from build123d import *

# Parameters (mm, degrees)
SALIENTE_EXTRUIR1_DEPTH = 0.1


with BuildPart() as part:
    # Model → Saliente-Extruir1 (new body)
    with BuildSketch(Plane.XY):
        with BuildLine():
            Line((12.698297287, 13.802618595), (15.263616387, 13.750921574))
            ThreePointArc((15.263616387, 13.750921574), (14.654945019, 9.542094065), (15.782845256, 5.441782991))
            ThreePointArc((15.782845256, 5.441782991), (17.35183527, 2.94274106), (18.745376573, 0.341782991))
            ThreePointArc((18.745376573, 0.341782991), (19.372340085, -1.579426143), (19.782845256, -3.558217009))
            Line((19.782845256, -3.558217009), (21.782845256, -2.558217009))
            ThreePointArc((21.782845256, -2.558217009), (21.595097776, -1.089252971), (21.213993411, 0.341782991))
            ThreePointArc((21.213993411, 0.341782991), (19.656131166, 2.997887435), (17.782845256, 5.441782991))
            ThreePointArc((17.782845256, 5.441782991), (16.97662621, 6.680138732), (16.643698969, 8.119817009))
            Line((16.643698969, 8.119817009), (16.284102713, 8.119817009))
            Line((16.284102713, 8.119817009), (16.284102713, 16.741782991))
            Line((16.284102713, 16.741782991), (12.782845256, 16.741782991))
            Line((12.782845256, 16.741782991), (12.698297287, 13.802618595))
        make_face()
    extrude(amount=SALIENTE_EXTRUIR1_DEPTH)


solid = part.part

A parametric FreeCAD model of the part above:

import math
import FreeCAD as App
import Part
import Sketcher
from FreeCAD import Vector

doc = App.newDocument("Part")
params = doc.addObject("Spreadsheet::Sheet", "Params")
for row, (alias, value) in enumerate([
    ("pad1_length", "0.1 mm"),
], start=1):
    params.set(f"A{row}", alias)
    params.set(f"B{row}", "=" + value)
    params.setAlias(f"B{row}", alias)

body = doc.addObject("PartDesign::Body", "Body")

# Sketch on XY plane
sketch1 = doc.addObject("Sketcher::SketchObject", "Sketch")
body.addObject(sketch1)
sketch1.AttachmentSupport = (doc.XY_Plane, [""])
sketch1.MapMode = "FlatFace"
sketch1.addGeometry(Part.LineSegment(Vector(12.698297, 13.802619, 0), Vector(15.263616, 13.750922, 0)), False)
sketch1.addGeometry(Part.ArcOfCircle(Part.Circle(Vector(25.028468, 10.190324, 0), Vector(0, 0, 1), 10.393757), math.radians(159.966423), math.radians(207.184978)), False)
sketch1.addGeometry(Part.ArcOfCircle(Part.Circle(Vector(-19.75414, -18.611693, 0), Vector(0, 0, 1), 42.912085), math.radians(26.21122), math.radians(34.092402)), False)
sketch1.addGeometry(Part.ArcOfCircle(Part.Circle(Vector(1.751335, -6.266924, 0), Vector(0, 0, 1), 18.233827), math.radians(8.543134), math.radians(21.25025)), False)
sketch1.addGeometry(Part.LineSegment(Vector(19.782845, -3.558217, 0), Vector(21.782845, -2.558217, 0)), False)
sketch1.addGeometry(Part.ArcOfCircle(Part.Circle(Vector(10.673083, -3.23167, 0), Vector(0, 0, 1), 11.130155), math.radians(3.468916), math.radians(18.727068)), False)
sketch1.addGeometry(Part.ArcOfCircle(Part.Circle(Vector(-1.037855, -10.924492, 0), Vector(0, 0, 1), 24.941406), math.radians(26.853429), math.radians(41.009864)), False)
sketch1.addGeometry(Part.ArcOfCircle(Part.Circle(Vector(20.883239, 8.341881, 0), Vector(0, 0, 1), 4.245352), math.radians(-177.001623), math.radians(-136.911813)), False)
sketch1.addGeometry(Part.LineSegment(Vector(16.643699, 8.119817, 0), Vector(16.284103, 8.119817, 0)), False)
sketch1.addGeometry(Part.LineSegment(Vector(16.284103, 8.119817, 0), Vector(16.284103, 16.741783, 0)), False)
sketch1.addGeometry(Part.LineSegment(Vector(16.284103, 16.741783, 0), Vector(12.782845, 16.741783, 0)), False)
sketch1.addGeometry(Part.LineSegment(Vector(12.782845, 16.741783, 0), Vector(12.698297, 13.802619, 0)), False)
sketch1.addConstraint(Sketcher.Constraint("Coincident", 0, 2, 1, 1))
sketch1.addConstraint(Sketcher.Constraint("Coincident", 1, 2, 2, 2))
sketch1.addConstraint(Sketcher.Constraint("Coincident", 2, 1, 3, 2))
sketch1.addConstraint(Sketcher.Constraint("Coincident", 3, 1, 4, 1))
sketch1.addConstraint(Sketcher.Constraint("Coincident", 4, 2, 5, 1))
sketch1.addConstraint(Sketcher.Constraint("Coincident", 5, 2, 6, 1))
sketch1.addConstraint(Sketcher.Constraint("Coincident", 6, 2, 7, 2))
sketch1.addConstraint(Sketcher.Constraint("Coincident", 7, 1, 8, 1))
sketch1.addConstraint(Sketcher.Constraint("Coincident", 8, 2, 9, 1))
sketch1.addConstraint(Sketcher.Constraint("Coincident", 9, 2, 10, 1))
sketch1.addConstraint(Sketcher.Constraint("Coincident", 10, 2, 11, 1))
sketch1.addConstraint(Sketcher.Constraint("Coincident", 11, 2, 0, 1))
sketch1.addConstraint(Sketcher.Constraint("Horizontal", 8))
sketch1.addConstraint(Sketcher.Constraint("Vertical", 9))
sketch1.addConstraint(Sketcher.Constraint("Horizontal", 10))
sketch1.addConstraint(Sketcher.Constraint("Horizontal", 2, 1, 5, 2))
sketch1.addConstraint(Sketcher.Constraint("Horizontal", 1, 2, 6, 2))
sketch1.addConstraint(Sketcher.Constraint("DistanceX", 1, 2, 3, 1, 4.0))
sketch1.addConstraint(Sketcher.Constraint("DistanceY", 3, 1, 1, 2, 9.0))
sketch1.addConstraint(Sketcher.Constraint("DistanceX", 3, 1, 4, 2, 2.0))
sketch1.addConstraint(Sketcher.Constraint("DistanceY", 3, 1, 4, 2, 1.0))
sketch1.addConstraint(Sketcher.Constraint("DistanceX", 1, 2, 6, 2, 2.0))
sketch1.addConstraint(Sketcher.Constraint("DistanceY", 2, 1, 1, 2, 5.1))
sketch1.addConstraint(Sketcher.Constraint("Radius", 7, 4.245352))
sketch1.addConstraint(Sketcher.Constraint("Radius", 1, 10.393757))
sketch1.addConstraint(Sketcher.Constraint("Radius", 2, 42.912085))
sketch1.addConstraint(Sketcher.Constraint("Radius", 3, 18.233827))
sketch1.addConstraint(Sketcher.Constraint("Radius", 5, 11.130155))
sketch1.addConstraint(Sketcher.Constraint("Radius", 6, 24.941406))
sketch1.addConstraint(Sketcher.Constraint("DistanceX", -1, 1, 7, 1, 16.643699))
sketch1.addConstraint(Sketcher.Constraint("DistanceY", 2, 3, 6, 3, 7.687201))
sketch1.addConstraint(Sketcher.Constraint("DistanceY", 1, 2, 7, 3, 2.900098))
sketch1.addConstraint(Sketcher.Constraint("DistanceY", 7, 3, 9, 2, 8.399902))
sketch1.addConstraint(Sketcher.Constraint("DistanceY", 8, 2, 11, 2, 5.682802))
sketch1.addConstraint(Sketcher.Constraint("DistanceX", 11, 2, 7, 1, 3.945402))
sketch1.addConstraint(Sketcher.Constraint("Distance", 0, 2.56584))
sketch1.addConstraint(Sketcher.Constraint("Distance", 11, 2.94038))
sketch1.addConstraint(Sketcher.Constraint("DistanceX", 8, 2, 8, 1, 0.359596))
sketch1.addConstraint(Sketcher.Constraint("DistanceX", 10, 2, 10, 1, 3.501257))
sketch1.addConstraint(Sketcher.Constraint("DistanceX", -1, 1, 1, 3, 25.028468))
sketch1.addConstraint(Sketcher.Constraint("DistanceX", 2, 3, -1, 1, 19.75414))
sketch1.addConstraint(Sketcher.Constraint("DistanceY", 5, 3, -1, 1, 3.23167))
pad1 = doc.addObject("PartDesign::Pad", "Pad")
body.addObject(pad1)
pad1.Profile = sketch1
pad1.setExpression("Length", "Params.pad1_length")

doc.recompute()
